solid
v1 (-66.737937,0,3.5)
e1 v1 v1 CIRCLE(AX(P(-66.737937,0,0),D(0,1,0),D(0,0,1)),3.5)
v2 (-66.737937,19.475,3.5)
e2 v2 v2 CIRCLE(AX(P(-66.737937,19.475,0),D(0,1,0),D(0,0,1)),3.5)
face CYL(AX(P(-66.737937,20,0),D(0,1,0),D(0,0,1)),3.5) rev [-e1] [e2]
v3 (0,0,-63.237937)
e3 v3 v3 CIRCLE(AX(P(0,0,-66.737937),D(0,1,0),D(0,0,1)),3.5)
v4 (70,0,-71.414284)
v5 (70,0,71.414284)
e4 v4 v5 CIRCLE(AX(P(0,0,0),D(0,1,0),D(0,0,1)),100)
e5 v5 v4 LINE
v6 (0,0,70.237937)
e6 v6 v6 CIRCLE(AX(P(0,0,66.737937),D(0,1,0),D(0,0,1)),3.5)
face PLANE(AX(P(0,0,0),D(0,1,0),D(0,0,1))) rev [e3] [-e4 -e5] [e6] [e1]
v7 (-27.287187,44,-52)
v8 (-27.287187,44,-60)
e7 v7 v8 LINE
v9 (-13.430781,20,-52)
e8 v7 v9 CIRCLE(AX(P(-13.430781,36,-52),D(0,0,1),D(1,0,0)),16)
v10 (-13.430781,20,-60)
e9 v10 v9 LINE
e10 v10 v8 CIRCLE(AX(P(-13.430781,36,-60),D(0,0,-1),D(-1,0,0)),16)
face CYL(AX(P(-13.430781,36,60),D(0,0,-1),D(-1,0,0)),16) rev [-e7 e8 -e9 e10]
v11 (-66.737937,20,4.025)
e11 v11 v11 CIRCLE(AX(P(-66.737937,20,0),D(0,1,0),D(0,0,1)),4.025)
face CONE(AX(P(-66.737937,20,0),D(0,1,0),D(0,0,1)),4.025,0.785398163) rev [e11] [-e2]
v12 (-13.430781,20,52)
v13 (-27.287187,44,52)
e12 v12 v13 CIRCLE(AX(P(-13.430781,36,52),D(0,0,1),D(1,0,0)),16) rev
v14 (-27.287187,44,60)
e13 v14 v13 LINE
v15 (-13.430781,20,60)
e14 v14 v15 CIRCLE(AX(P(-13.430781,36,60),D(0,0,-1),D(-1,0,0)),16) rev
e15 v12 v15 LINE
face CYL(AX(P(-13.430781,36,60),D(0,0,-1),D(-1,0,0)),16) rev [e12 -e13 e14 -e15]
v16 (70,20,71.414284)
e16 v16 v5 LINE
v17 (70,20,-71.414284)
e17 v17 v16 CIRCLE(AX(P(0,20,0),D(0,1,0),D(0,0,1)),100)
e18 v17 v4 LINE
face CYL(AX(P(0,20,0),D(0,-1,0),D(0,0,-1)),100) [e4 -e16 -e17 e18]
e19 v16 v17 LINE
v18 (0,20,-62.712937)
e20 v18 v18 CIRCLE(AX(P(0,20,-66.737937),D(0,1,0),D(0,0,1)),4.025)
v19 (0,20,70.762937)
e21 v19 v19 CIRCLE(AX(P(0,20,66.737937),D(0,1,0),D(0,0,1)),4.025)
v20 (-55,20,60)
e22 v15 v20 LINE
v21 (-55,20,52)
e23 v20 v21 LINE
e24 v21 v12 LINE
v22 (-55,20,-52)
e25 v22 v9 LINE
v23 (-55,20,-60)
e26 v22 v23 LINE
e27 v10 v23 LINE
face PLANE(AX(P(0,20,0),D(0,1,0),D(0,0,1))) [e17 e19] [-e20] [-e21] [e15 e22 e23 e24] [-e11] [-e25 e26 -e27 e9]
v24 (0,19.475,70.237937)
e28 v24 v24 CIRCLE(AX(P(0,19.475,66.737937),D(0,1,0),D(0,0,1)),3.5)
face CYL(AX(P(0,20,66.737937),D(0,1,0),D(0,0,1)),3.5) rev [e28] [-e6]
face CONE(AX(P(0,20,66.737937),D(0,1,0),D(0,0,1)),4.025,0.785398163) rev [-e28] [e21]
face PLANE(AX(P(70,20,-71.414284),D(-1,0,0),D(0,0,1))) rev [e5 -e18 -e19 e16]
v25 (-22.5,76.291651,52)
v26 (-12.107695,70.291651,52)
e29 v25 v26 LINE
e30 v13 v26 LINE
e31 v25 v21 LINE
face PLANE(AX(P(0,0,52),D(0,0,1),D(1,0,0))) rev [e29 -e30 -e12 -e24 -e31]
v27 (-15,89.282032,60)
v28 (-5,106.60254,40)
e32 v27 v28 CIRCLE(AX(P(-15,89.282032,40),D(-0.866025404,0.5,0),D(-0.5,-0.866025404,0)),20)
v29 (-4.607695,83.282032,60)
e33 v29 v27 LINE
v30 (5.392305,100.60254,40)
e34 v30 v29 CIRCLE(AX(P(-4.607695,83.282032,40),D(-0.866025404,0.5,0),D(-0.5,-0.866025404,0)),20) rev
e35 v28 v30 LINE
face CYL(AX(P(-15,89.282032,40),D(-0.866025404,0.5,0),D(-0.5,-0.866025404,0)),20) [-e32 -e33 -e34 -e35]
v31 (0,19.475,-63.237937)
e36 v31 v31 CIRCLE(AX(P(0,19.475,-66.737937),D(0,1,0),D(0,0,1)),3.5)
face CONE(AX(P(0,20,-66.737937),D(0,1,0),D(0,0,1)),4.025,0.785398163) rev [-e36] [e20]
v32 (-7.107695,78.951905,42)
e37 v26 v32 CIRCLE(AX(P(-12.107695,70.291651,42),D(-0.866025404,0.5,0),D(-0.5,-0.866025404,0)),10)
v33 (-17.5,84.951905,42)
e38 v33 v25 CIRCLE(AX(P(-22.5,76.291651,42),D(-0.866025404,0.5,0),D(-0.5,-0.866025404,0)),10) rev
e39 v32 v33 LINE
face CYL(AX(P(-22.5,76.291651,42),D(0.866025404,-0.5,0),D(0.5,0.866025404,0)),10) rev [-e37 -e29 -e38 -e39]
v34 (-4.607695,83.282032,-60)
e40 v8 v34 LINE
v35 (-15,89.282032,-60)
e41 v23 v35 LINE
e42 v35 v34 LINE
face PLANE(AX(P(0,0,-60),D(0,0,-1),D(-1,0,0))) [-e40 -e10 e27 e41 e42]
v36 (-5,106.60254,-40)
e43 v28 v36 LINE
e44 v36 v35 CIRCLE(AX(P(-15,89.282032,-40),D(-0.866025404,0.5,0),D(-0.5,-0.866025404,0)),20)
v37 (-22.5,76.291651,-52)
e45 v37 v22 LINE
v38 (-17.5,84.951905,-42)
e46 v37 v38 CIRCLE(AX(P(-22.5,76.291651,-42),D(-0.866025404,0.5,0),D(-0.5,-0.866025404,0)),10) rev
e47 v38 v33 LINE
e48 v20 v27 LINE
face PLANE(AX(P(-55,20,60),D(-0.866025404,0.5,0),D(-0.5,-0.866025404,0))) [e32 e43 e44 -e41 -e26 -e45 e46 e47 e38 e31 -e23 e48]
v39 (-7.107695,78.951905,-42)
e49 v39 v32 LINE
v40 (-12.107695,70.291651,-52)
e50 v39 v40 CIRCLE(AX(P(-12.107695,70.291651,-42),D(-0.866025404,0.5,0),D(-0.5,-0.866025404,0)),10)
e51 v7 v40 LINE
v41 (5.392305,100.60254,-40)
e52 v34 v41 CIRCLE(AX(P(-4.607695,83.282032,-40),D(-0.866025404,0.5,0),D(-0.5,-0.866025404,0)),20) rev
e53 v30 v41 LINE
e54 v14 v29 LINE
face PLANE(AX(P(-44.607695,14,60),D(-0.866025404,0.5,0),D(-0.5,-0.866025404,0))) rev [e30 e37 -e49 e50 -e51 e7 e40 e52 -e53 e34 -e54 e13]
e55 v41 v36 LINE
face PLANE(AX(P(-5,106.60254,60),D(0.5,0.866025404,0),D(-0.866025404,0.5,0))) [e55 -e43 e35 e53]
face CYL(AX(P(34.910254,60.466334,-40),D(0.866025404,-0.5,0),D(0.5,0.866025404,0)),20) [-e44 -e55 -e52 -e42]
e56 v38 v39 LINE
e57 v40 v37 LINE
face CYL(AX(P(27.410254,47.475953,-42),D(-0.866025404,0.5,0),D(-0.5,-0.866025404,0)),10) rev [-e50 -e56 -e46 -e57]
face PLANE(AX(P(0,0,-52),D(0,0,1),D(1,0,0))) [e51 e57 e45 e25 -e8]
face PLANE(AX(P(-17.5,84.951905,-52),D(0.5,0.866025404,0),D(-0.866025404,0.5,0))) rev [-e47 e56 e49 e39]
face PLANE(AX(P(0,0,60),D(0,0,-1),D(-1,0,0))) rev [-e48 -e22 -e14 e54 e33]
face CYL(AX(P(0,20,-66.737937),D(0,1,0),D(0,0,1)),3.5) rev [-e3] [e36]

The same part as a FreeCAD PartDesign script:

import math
import FreeCAD as App
import Part
import Sketcher
from FreeCAD import Vector
Q = App.Units.Quantity


def edges_at(feature, points):
    """Names of the edges that pass closest to the given points."""
    edges = feature.Shape.Edges
    near = lambda p: min(range(len(edges)), key=lambda i: edges[i].distToShape(Part.Vertex(*p))[0])
    return sorted({f"Edge{near(p) + 1}" for p in points})


def add_polygon(sketch, points):
    """Adds a closed chain of lines whose ends are joined by coincident constraints."""
    first, n = sketch.GeometryCount, len(points)
    for a, b in zip(points, points[1:] + points[:1]):
        sketch.addGeometry(Part.LineSegment(App.Vector(*a, 0), App.Vector(*b, 0)), False)
    for i in range(n):
        sketch.addConstraint(Sketcher.Constraint("Coincident", first + i, 2, first + (i + 1) % n, 1))

doc = App.newDocument("Part")
params = doc.addObject("Spreadsheet::Sheet", "Params")
for row, (alias, value) in enumerate([
    ("sketch1_radius", "100 mm"),
    ("pad1_length", "20 mm"),
    ("sketch2_length", "100 mm"),
    ("sketch2_length2", "12 mm"),
    ("pad2_length", "120 mm"),
    ("sketch3_length", "12 mm"),
    ("sketch3_length2", "75 mm"),
    ("pocket1_length", "104 mm"),
    ("fillet_radius", "20 mm"),
    ("fillet2_radius", "10 mm"),
    ("fillet3_radius", "16 mm"),
    ("fillet4_radius", "16 mm"),
    ("sketch4_diameter", "7 mm"),
    ("hole_diameter", "7 mm"),
    ("hole_csink_diameter", "8.05 mm"),
], start=1):
    params.set(f"A{row}", alias)
    params.set(f"B{row}", "=" + value)
    params.setAlias(f"B{row}", alias)

body = doc.addObject("PartDesign::Body", "Body")

sketch1 = body.newObject("Sketcher::SketchObject", "Sketch")
sketch1.AttachmentSupport = (doc.getObject("XZ_Plane"), [""])
sketch1.MapMode = "FlatFace"
sketch1.addGeometry([
    Part.LineSegment(Vector(70, 71, 0), Vector(70, -71, 0)),
    Part.ArcOfCircle(Part.Circle(Vector(0, 0, 0), Vector(0, 0, 1), 100), math.radians(46), math.radians(314)),
], False)
sketch1.addConstraint([
    Sketcher.Constraint("Coincident", 0, 1, 1, 1),
    Sketcher.Constraint("Coincident", 1, 2, 0, 2),
    Sketcher.Constraint("Vertical", 0),
    Sketcher.Constraint("Coincident", 1, 3, -1, 1),
    Sketcher.Constraint("Radius", 1, Q("100 mm")),
    Sketcher.Constraint("DistanceX", -1, 1, 0, 1, Q("70 mm")),
])
sketch1.setExpression("Constraints[4]", "Params.sketch1_radius")
pad1 = body.newObject("PartDesign::Pad", "Pad")
pad1.Profile = sketch1
pad1.setExpression("Length", "Params.pad1_length")
pad1.Reversed = True

sketch2 = body.newObject("Sketcher::SketchObject", "Sketch001")
sketch2.AttachmentSupport = (doc.getObject("XY_Plane"), [""])
sketch2.MapMode = "FlatFace"
add_polygon(sketch2, [(-5, 107), (-55, 20), (-45, 14), (5, 101)])
sketch2.addConstraint([
    Sketcher.Constraint("Perpendicular", 0, 1),
    Sketcher.Constraint("Perpendicular", 1, 2),
    Sketcher.Constraint("Perpendicular", 2, 3),
    Sketcher.Constraint("Angle", 0, Q("-120 deg")),
    Sketcher.Constraint("Distance", 0, Q("100 mm")),
    Sketcher.Constraint("Distance", 1, Q("12 mm")),
    Sketcher.Constraint("DistanceX", 0, 2, -1, 1, Q("55 mm")),
    Sketcher.Constraint("DistanceY", -1, 1, 0, 2, Q("20 mm")),
])
sketch2.setExpression("Constraints[8]", "Params.sketch2_length")
sketch2.setExpression("Constraints[9]", "Params.sketch2_length2")
pad2 = body.newObject("PartDesign::Pad", "Pad001")
pad2.Profile = sketch2
pad2.setExpression("Length", "Params.pad2_length")
pad2.Midplane = True

sketch3 = body.newObject("Sketcher::SketchObject", "Sketch002")
sketch3.AttachmentSupport = (doc.getObject("XY_Plane"), [""])
sketch3.MapMode = "FlatFace"
add_polygon(sketch3, [(-7, 79), (-18, 85), (-55, 20), (-41, 20)])
sketch3.addConstraint([
    Sketcher.Constraint("Horizontal", 2),
    Sketcher.Constraint("Perpendicular", 0, 1),
    Sketcher.Constraint("Parallel", 1, 3),
    Sketcher.Constraint("Angle", 0, Q("150 deg")),
    Sketcher.Constraint("Distance", 0, Q("12 mm")),
    Sketcher.Constraint("Distance", 1, Q("75 mm")),
    Sketcher.Constraint("DistanceX", 1, 2, -1, 1, Q("55 mm")),
    Sketcher.Constraint("DistanceY", -1, 1, 1, 2, Q("20 mm")),
])
sketch3.setExpression("Constraints[8]", "Params.sketch3_length")
sketch3.setExpression("Constraints[9]", "Params.sketch3_length2")
pocket1 = body.newObject("PartDesign::Pocket", "Pocket")
pocket1.Profile = sketch3
pocket1.setExpression("Length", "Params.pocket1_length")
pocket1.Midplane = True
doc.recompute()

fillet = body.newObject("PartDesign::Fillet", "Fillet")
fillet.Base = (pocket1, edges_at(pocket1, [(0.196, 103.603, 60), (0.196, 103.603, -60)]))
fillet.setExpression("Radius", "Params.fillet_radius")
doc.recompute()

fillet2 = body.newObject("PartDesign::Fillet", "Fillet001")
fillet2.Base = (fillet, edges_at(fillet, [(-12.304, 81.952, -52), (-12.304, 81.952, 52)]))
fillet2.setExpression("Radius", "Params.fillet2_radius")
doc.recompute()

fillet3 = body.newObject("PartDesign::Fillet", "Fillet002")
fillet3.Base = (fillet2, edges_at(fillet2, [(-41.144, 20, -56)]))
fillet3.setExpression("Radius", "Params.fillet3_radius")
doc.recompute()

fillet4 = body.newObject("PartDesign::Fillet", "Fillet003")
fillet4.Base = (fillet3, edges_at(fillet3, [(-41.144, 20, 56)]))
fillet4.setExpression("Radius", "Params.fillet4_radius")

sketch4 = body.newObject("Sketcher::SketchObject", "Sketch003")
sketch4.AttachmentSupport = (doc.getObject("XZ_Plane"), [""])
sketch4.MapMode = "FlatFace"
sketch4.AttachmentOffset = App.Placement(Vector(0, 0, -20), App.Rotation())
sketch4.addGeometry([
    Part.Circle(Vector(-66.7, 0, 0), Vector(0, 0, 1), 3.5),
    Part.Circle(Vector(0, -66.7, 0), Vector(0, 0, 1), 3.5),
    Part.Circle(Vector(0, 66.7, 0), Vector(0, 0, 1), 3.5),
], False)
sketch4.addConstraint([
    Sketcher.Constraint("Equal", 0, 1),
    Sketcher.Constraint("Equal", 1, 2),
    Sketcher.Constraint("Symmetric", 1, 3, 2, 3, -1, 1),
    Sketcher.Constraint("PointOnObject", 0, 3, -1),
    Sketcher.Constraint("PointOnObject", 1, 3, -2),
    Sketcher.Constraint("Diameter", 0, Q("7 mm")),
    Sketcher.Constraint("DistanceX", 0, 3, -1, 1, Q("66.737937 mm")),
    Sketcher.Constraint("DistanceY", 1, 3, -1, 1, Q("66.737937 mm")),
])
sketch4.setExpression("Constraints[5]", "Params.sketch4_diameter")
doc.recompute()
hole = body.newObject("PartDesign::Hole", "Hole")
hole.Profile = sketch4
hole.ThreadType = "None"
hole.setExpression("Diameter", "Params.hole_diameter")
hole.DepthType = "ThroughAll"
hole.HoleCutType = "Countersink"
hole.setExpression("HoleCutDiameter", "Params.hole_csink_diameter")
hole.HoleCutCountersinkAngle = 90
hole.Reversed = True

doc.recompute()
